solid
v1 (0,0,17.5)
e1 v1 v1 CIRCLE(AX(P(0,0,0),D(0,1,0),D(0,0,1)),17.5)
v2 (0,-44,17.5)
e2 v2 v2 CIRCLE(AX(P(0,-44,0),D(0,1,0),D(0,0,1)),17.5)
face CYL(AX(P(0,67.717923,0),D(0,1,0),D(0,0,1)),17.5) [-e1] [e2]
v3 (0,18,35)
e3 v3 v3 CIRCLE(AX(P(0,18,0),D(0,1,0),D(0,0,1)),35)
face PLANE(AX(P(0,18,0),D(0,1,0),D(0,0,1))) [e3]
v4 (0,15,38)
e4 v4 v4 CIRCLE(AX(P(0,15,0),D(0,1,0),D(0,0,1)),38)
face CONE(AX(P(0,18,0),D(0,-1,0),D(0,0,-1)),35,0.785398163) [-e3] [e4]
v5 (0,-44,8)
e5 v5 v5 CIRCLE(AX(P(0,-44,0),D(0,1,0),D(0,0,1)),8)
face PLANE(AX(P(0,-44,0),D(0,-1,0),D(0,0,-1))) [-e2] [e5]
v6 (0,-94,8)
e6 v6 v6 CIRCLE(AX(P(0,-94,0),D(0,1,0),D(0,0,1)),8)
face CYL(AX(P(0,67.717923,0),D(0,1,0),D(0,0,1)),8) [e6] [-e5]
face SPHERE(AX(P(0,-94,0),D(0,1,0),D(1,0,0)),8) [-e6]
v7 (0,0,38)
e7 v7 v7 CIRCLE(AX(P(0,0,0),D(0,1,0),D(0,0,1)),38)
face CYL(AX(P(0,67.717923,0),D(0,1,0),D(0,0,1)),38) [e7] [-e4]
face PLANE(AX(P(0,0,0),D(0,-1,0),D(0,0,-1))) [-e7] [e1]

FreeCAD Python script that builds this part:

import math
import FreeCAD as App
import Part
import Sketcher
Q = App.Units.Quantity

doc = App.newDocument("Part")
body = doc.addObject("PartDesign::Body", "Body")

sketch1 = doc.addObject("Sketcher::SketchObject", "Sketch")
body.addObject(sketch1)
sketch1.AttachmentSupport = (doc.XY_Plane, [""])
sketch1.MapMode = "FlatFace"
sketch1.addGeometry([
    Part.LineSegment(App.Vector(35, 18, 0), App.Vector(0, 18, 0)),
    Part.LineSegment(App.Vector(0, 18, 0), App.Vector(0, -102, 0)),
    Part.ArcOfCircle(Part.Circle(App.Vector(0, -94, 0), App.Vector(0, 0, 1), 8), math.radians(-90), math.radians(0)),
    Part.LineSegment(App.Vector(8, -94, 0), App.Vector(8, -44, 0)),
    Part.LineSegment(App.Vector(8, -44, 0), App.Vector(17.5, -44, 0)),
    Part.LineSegment(App.Vector(17.5, -44, 0), App.Vector(17.5, 0, 0)),
    Part.LineSegment(App.Vector(17.5, 0, 0), App.Vector(38, 0, 0)),
    Part.LineSegment(App.Vector(38, 0, 0), App.Vector(38, 15, 0)),
    Part.LineSegment(App.Vector(38, 15, 0), App.Vector(35, 18, 0)),
], False)
sketch1.addConstraint([
    Sketcher.Constraint("Coincident", 0, 2, 1, 1),
    Sketcher.Constraint("Coincident", 1, 2, 2, 1),
    Sketcher.Constraint("Tangent", 2, 2, 3, 1),
    Sketcher.Constraint("Coincident", 3, 2, 4, 1),
    Sketcher.Constraint("Coincident", 4, 2, 5, 1),
    Sketcher.Constraint("Coincident", 5, 2, 6, 1),
    Sketcher.Constraint("Coincident", 6, 2, 7, 1),
    Sketcher.Constraint("Coincident", 7, 2, 8, 1),
    Sketcher.Constraint("Coincident", 8, 2, 0, 1),
    Sketcher.Constraint("Horizontal", 0),
    Sketcher.Constraint("Vertical", 1),
    Sketcher.Constraint("Vertical", 3),
    Sketcher.Constraint("Horizontal", 4),
    Sketcher.Constraint("Vertical", 5),
    Sketcher.Constraint("Horizontal", 6),
    Sketcher.Constraint("Vertical", 7),
    Sketcher.Constraint("PointOnObject", 2, 3, -2),
    Sketcher.Constraint("PointOnObject", 0, 2, -2),
    Sketcher.Constraint("PointOnObject", 5, 2, -1),
    Sketcher.Constraint("Radius", 2, 8.0),
    Sketcher.Constraint("DistanceX", 0, 2, 0, 1, 35.0),
    Sketcher.Constraint("DistanceY", 1, 2, 1, 1, 120.0),
    Sketcher.Constraint("DistanceY", 3, 1, 3, 2, 50.0),
    Sketcher.Constraint("DistanceY", 5, 1, 5, 2, 44.0),
    Sketcher.Constraint("DistanceY", 7, 1, 7, 2, 15.0),
    Sketcher.Constraint("Angle", 8, Q("135 deg")),
    Sketcher.Constraint("DistanceX", 4, 1, 4, 2, 9.5),
])
revolution = doc.addObject("PartDesign::Revolution", "Revolution")
body.addObject(revolution)
revolution.Profile = sketch1
revolution.ReferenceAxis = (sketch1, ["V_Axis"])
revolution.Angle = 360

doc.recompute()
